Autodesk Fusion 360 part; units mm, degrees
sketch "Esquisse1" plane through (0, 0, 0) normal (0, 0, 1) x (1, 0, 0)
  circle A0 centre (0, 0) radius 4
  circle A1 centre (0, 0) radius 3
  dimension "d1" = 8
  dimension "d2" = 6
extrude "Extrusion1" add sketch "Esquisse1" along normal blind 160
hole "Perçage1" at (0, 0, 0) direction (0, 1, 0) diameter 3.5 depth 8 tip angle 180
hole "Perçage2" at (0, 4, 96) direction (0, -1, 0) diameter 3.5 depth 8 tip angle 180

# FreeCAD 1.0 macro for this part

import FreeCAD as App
import Part
import Sketcher
from FreeCAD import Vector

doc = App.newDocument("Part")
body = doc.addObject("PartDesign::Body", "Body")

# Sketch on XY plane
sketch1 = body.newObject("Sketcher::SketchObject", "Sketch")
sketch1.AttachmentSupport = (doc.getObject("XY_Plane"), [""])
sketch1.MapMode = "FlatFace"
sketch1.addGeometry([
    Part.Circle(Vector(0, 0, 0), Vector(0, 0, 1), 4),
    Part.Circle(Vector(0, 0, 0), Vector(0, 0, 1), 3),
], False)
sketch1.addConstraint([
    Sketcher.Constraint("Coincident", 0, 3, -1, 1),
    Sketcher.Constraint("Coincident", 1, 3, -1, 1),
    Sketcher.Constraint("Diameter", 0, 8.0),
    Sketcher.Constraint("Diameter", 1, 6.0),
])
pad1 = body.newObject("PartDesign::Pad", "Pad")
pad1.Profile = sketch1
pad1.Length = 160

# Sketch on XZ plane
sketch2 = body.newObject("Sketcher::SketchObject", "Sketch001")
sketch2.AttachmentSupport = (doc.getObject("XZ_Plane"), [""])
sketch2.MapMode = "FlatFace"
sketch2.addGeometry(Part.Circle(Vector(0, 0, 0), Vector(0, 0, 1), 1.8), False)
sketch2.addConstraint([
    Sketcher.Constraint("Coincident", 0, 3, -1, 1),
    Sketcher.Constraint("Diameter", 0, 3.5),
])
doc.recompute()
hole = body.newObject("PartDesign::Hole", "Hole")
hole.Profile = sketch2
hole.ThreadType = "None"
hole.Diameter = 3.5
hole.DepthType = "Dimension"
hole.Depth = 8
hole.DrillPoint = "Flat"

# Sketch on XZ plane
sketch3 = body.newObject("Sketcher::SketchObject", "Sketch002")
sketch3.AttachmentSupport = (doc.getObject("XZ_Plane"), [""])
sketch3.MapMode = "FlatFace"
sketch3.AttachmentOffset = App.Placement(Vector(0, 0, -4), App.Rotation())
sketch3.addGeometry(Part.Circle(Vector(0, 96, 0), Vector(0, 0, 1), 1.8), False)
sketch3.addConstraint([
    Sketcher.Constraint("PointOnObject", 0, 3, -2),
    Sketcher.Constraint("Diameter", 0, 3.5),
    Sketcher.Constraint("DistanceY", -1, 1, 0, 3, 96.0),
])
doc.recompute()
hole2 = body.newObject("PartDesign::Hole", "Hole001")
hole2.Profile = sketch3
hole2.ThreadType = "None"
hole2.Diameter = 3.5
hole2.DepthType = "Dimension"
hole2.Depth = 8
hole2.DrillPoint = "Flat"
hole2.Reversed = True

doc.recompute()
